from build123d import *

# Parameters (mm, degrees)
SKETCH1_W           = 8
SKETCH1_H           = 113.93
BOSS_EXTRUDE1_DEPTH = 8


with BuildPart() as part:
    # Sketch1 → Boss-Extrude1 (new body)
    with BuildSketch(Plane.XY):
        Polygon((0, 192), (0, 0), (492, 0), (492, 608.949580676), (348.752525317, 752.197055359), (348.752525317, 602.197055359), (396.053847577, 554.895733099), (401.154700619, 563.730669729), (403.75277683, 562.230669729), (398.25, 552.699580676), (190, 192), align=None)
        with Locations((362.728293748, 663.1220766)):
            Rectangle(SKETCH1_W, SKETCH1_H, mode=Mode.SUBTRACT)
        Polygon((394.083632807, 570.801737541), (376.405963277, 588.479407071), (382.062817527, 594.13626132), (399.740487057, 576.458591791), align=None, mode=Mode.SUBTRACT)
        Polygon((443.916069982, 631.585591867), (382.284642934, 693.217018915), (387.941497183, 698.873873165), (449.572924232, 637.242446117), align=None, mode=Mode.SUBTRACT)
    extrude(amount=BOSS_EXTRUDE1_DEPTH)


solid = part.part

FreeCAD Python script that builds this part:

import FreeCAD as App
import Part
import Sketcher
Q = App.Units.Quantity

doc = App.newDocument("Part")
body = doc.addObject("PartDesign::Body", "Body")

# Sketch on XY plane
sketch1 = body.newObject("Sketcher::SketchObject", "Sketch")
sketch1.AttachmentSupport = (doc.getObject("XY_Plane"), [""])
sketch1.MapMode = "FlatFace"
sketch1.addGeometry([
    Part.LineSegment(App.Vector(0, 192, 0), App.Vector(0, 0, 0)),  # 0
    Part.LineSegment(App.Vector(0, 0, 0), App.Vector(492, 0, 0)),  # 1
    Part.LineSegment(App.Vector(492, 0, 0), App.Vector(492, 608.9, 0)),  # 2
    Part.LineSegment(App.Vector(492, 608.9, 0), App.Vector(348.8, 752.2, 0)),  # 3
    Part.LineSegment(App.Vector(348.8, 752.2, 0), App.Vector(348.8, 602.2, 0)),  # 4
    Part.LineSegment(App.Vector(348.8, 602.2, 0), App.Vector(396.1, 554.9, 0)),  # 5
    Part.LineSegment(App.Vector(396.1, 554.9, 0), App.Vector(401.2, 563.7, 0)),  # 6
    Part.LineSegment(App.Vector(401.2, 563.7, 0), App.Vector(403.8, 562.2, 0)),  # 7
    Part.LineSegment(App.Vector(403.8, 562.2, 0), App.Vector(398.2, 552.7, 0)),  # 8
    Part.LineSegment(App.Vector(398.2, 552.7, 0), App.Vector(190, 192, 0)),  # 9
    Part.LineSegment(App.Vector(190, 192, 0), App.Vector(0, 192, 0)),  # 10
    Part.LineSegment(App.Vector(399.7, 576.5, 0), App.Vector(394.1, 570.8, 0)),  # 11
    Part.LineSegment(App.Vector(394.1, 570.8, 0), App.Vector(376.4, 588.5, 0)),  # 12
    Part.LineSegment(App.Vector(376.4, 588.5, 0), App.Vector(382.1, 594.1, 0)),  # 13
    Part.LineSegment(App.Vector(382.1, 594.1, 0), App.Vector(399.7, 576.5, 0)),  # 14
    Part.LineSegment(App.Vector(366.7, 606.2, 0), App.Vector(358.7, 606.2, 0)),  # 15
    Part.LineSegment(App.Vector(358.7, 606.2, 0), App.Vector(358.7, 720.1, 0)),  # 16
    Part.LineSegment(App.Vector(358.7, 720.1, 0), App.Vector(366.7, 720.1, 0)),  # 17
    Part.LineSegment(App.Vector(366.7, 720.1, 0), App.Vector(366.7, 606.2, 0)),  # 18
    Part.LineSegment(App.Vector(449.6, 637.2, 0), App.Vector(443.9, 631.6, 0)),  # 19
    Part.LineSegment(App.Vector(443.9, 631.6, 0), App.Vector(382.3, 693.2, 0)),  # 20
    Part.LineSegment(App.Vector(382.3, 693.2, 0), App.Vector(387.9, 698.9, 0)),  # 21
    Part.LineSegment(App.Vector(387.9, 698.9, 0), App.Vector(449.6, 637.2, 0)),  # 22
], False)
sketch1.addConstraint([
    Sketcher.Constraint("Coincident", 0, 2, 1, 1),
    Sketcher.Constraint("Coincident", 1, 2, 2, 1),
    Sketcher.Constraint("Coincident", 2, 2, 3, 1),
    Sketcher.Constraint("Coincident", 3, 2, 4, 1),
    Sketcher.Constraint("Coincident", 4, 2, 5, 1),
    Sketcher.Constraint("Coincident", 5, 2, 6, 1),
    Sketcher.Constraint("Coincident", 6, 2, 7, 1),
    Sketcher.Constraint("Coincident", 7, 2, 8, 1),
    Sketcher.Constraint("Coincident", 8, 2, 9, 1),
    Sketcher.Constraint("Coincident", 9, 2, 10, 1),
    Sketcher.Constraint("Coincident", 10, 2, 0, 1),
    Sketcher.Constraint("Coincident", 11, 2, 12, 1),
    Sketcher.Constraint("Coincident", 12, 2, 13, 1),
    Sketcher.Constraint("Coincident", 13, 2, 14, 1),
    Sketcher.Constraint("Coincident", 14, 2, 11, 1),
    Sketcher.Constraint("Coincident", 15, 2, 16, 1),
    Sketcher.Constraint("Coincident", 16, 2, 17, 1),
    Sketcher.Constraint("Coincident", 17, 2, 18, 1),
    Sketcher.Constraint("Coincident", 18, 2, 15, 1),
    Sketcher.Constraint("Coincident", 19, 2, 20, 1),
    Sketcher.Constraint("Coincident", 20, 2, 21, 1),
    Sketcher.Constraint("Coincident", 21, 2, 22, 1),
    Sketcher.Constraint("Coincident", 22, 2, 19, 1),
    Sketcher.Constraint("Vertical", 0),
    Sketcher.Constraint("Horizontal", 1),
    Sketcher.Constraint("Vertical", 2),
    Sketcher.Constraint("Vertical", 4),
    Sketcher.Constraint("Horizontal", 10),
    Sketcher.Constraint("Horizontal", 15),
    Sketcher.Constraint("Vertical", 16),
    Sketcher.Constraint("Horizontal", 17),
    Sketcher.Constraint("Vertical", 18),
    Sketcher.Constraint("Coincident", 0, 2, -1, 1),
    Sketcher.Constraint("Parallel", 3, 5),
    Sketcher.Constraint("Perpendicular", 6, 7),
    Sketcher.Constraint("Perpendicular", 7, 8),
    Sketcher.Constraint("Parallel", 8, 9),
    Sketcher.Constraint("Perpendicular", 5, 11),
    Sketcher.Constraint("Perpendicular", 11, 12),
    Sketcher.Constraint("Perpendicular", 12, 13),
    Sketcher.Constraint("Perpendicular", 13, 14),
    Sketcher.Constraint("Perpendicular", 14, 19),
    Sketcher.Constraint("Perpendicular", 19, 20),
    Sketcher.Constraint("Perpendicular", 20, 21),
    Sketcher.Constraint("Perpendicular", 21, 22),
    Sketcher.Constraint("Equal", 13, 19),
    Sketcher.Constraint("DistanceX", 1, 1, 1, 2, Q("492 mm")),
    Sketcher.Constraint("DistanceX", 10, 2, 10, 1, Q("190 mm")),
    Sketcher.Constraint("DistanceX", 15, 2, 15, 1, Q("8 mm")),
    Sketcher.Constraint("DistanceY", 0, 2, 0, 1, Q("192 mm")),
    Sketcher.Constraint("DistanceY", 4, 2, 4, 1, Q("150 mm")),
    Sketcher.Constraint("Angle", 3, Q("135 deg")),
    Sketcher.Constraint("Angle", 6, Q("60 deg")),
    Sketcher.Constraint("Distance", 7, Q("3 mm")),
    Sketcher.Constraint("Distance", 11, Q("8 mm")),
    Sketcher.Constraint("Distance", 12, Q("25 mm")),
    Sketcher.Constraint("Distance", 9, Q("416.5 mm")),
    Sketcher.Constraint("DistanceY", 16, 1, 16, 2, Q("113.93 mm")),
    Sketcher.Constraint("Distance", 20, Q("87.16 mm")),
    Sketcher.Constraint("DistanceY", 8, 2, 2, 2, Q("56.25 mm")),
    Sketcher.Constraint("DistanceY", 14, 2, 19, 2, Q("55.127 mm")),
    Sketcher.Constraint("DistanceX", -1, 1, 6, 2, Q("401.154701 mm")),
    Sketcher.Constraint("Distance", 3, Q("202.582521 mm")),
    Sketcher.Constraint("DistanceY", -1, 1, 13, 2, Q("594.136261 mm")),
    Sketcher.Constraint("DistanceX", -1, 1, 19, 2, Q("443.91607 mm")),
    Sketcher.Constraint("DistanceX", 13, 2, 7, 2, Q("21.689959 mm")),
    Sketcher.Constraint("DistanceX", 4, 2, 15, 2, Q("9.975768 mm")),
    Sketcher.Constraint("DistanceY", 4, 2, 15, 2, Q("3.960021 mm")),
])
pad1 = body.newObject("PartDesign::Pad", "Pad")
pad1.Profile = sketch1
pad1.Length = 8

doc.recompute()
